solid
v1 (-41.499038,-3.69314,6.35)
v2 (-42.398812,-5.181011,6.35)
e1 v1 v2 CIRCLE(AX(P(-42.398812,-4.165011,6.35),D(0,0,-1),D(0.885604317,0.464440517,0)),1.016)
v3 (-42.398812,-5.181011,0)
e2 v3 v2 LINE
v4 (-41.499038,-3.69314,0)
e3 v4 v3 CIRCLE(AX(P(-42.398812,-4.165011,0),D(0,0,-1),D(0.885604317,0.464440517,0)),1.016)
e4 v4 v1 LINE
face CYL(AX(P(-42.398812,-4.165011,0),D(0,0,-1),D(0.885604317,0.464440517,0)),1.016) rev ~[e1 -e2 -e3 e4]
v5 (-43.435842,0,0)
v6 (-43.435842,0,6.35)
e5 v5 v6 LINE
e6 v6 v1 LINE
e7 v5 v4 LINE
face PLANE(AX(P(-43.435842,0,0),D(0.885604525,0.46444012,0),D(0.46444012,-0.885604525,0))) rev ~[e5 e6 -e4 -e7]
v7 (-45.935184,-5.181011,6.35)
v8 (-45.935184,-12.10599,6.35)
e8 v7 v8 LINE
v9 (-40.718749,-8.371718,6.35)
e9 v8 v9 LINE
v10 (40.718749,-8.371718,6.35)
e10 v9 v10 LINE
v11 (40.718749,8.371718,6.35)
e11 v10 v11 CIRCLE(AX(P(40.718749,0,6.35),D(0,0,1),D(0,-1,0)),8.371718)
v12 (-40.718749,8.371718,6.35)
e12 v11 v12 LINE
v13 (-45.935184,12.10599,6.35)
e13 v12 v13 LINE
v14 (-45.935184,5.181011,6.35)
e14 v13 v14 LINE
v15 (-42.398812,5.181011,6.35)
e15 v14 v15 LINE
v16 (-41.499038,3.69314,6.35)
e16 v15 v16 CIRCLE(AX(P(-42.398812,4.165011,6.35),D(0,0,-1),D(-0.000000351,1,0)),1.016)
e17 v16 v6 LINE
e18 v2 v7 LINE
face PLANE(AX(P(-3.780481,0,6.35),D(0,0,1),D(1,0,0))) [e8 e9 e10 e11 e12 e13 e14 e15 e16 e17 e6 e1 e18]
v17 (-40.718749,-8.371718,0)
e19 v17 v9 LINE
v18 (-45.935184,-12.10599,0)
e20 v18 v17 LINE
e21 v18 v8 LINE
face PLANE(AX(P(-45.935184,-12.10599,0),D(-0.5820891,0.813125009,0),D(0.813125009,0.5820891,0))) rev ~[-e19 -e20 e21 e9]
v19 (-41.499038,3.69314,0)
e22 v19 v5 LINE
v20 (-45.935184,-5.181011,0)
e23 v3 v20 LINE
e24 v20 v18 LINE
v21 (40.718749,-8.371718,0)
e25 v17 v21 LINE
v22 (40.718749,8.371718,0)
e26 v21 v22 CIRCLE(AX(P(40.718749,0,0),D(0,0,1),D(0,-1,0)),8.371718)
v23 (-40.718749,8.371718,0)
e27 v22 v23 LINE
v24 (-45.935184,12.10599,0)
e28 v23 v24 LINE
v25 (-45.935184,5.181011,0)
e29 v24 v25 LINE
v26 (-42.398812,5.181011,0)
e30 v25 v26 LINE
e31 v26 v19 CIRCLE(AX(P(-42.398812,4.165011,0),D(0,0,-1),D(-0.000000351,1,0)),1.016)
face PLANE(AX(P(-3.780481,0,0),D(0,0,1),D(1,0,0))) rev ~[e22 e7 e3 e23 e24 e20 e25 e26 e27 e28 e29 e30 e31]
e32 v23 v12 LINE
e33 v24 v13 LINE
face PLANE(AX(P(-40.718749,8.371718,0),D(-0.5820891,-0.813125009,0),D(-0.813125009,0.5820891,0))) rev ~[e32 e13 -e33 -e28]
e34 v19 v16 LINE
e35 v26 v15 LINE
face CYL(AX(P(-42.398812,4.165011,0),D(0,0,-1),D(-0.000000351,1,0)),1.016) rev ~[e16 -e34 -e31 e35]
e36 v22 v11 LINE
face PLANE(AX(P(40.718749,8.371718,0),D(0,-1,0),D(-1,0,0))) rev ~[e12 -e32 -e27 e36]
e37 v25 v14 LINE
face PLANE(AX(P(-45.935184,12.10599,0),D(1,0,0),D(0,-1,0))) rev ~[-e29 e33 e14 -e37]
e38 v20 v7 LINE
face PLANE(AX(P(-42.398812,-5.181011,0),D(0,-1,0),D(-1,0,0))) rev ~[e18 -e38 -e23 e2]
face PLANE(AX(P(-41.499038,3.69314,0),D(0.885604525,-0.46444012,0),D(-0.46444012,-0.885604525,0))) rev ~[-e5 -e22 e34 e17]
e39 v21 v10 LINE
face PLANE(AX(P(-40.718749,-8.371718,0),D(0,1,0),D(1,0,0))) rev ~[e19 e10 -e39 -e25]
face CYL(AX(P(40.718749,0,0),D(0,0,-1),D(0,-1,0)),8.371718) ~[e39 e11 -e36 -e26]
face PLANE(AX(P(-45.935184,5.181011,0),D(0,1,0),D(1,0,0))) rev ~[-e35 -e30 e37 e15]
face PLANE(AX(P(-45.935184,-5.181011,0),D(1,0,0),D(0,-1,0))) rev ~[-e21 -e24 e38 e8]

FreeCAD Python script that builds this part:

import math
import FreeCAD as App
import Part
import Sketcher
Q = App.Units.Quantity

doc = App.newDocument("Part")
body = doc.addObject("PartDesign::Body", "Body")

# Sketch on XY plane
sketch1 = body.newObject("Sketcher::SketchObject", "Sketch")
sketch1.AttachmentSupport = (doc.getObject("XY_Plane"), [""])
sketch1.MapMode = "FlatFace"
sketch1.addGeometry([
    Part.ArcOfCircle(Part.Circle(App.Vector(40.7, 0, 0), App.Vector(0, 0, 1), 8.4), math.radians(-90), math.radians(90)),  # 0
    Part.LineSegment(App.Vector(40.7, 8.4, 0), App.Vector(-40.7, 8.4, 0)),  # 1
    Part.LineSegment(App.Vector(-40.7, 8.4, 0), App.Vector(-45.9, 12.1, 0)),  # 2
    Part.LineSegment(App.Vector(-45.9, 12.1, 0), App.Vector(-45.9, 5.2, 0)),  # 3
    Part.LineSegment(App.Vector(-45.9, 5.2, 0), App.Vector(-42.4, 5.2, 0)),  # 4
    Part.ArcOfCircle(Part.Circle(App.Vector(-42.4, 4.2, 0), App.Vector(0, 0, 1), 1), math.radians(-28), math.radians(90)),  # 5
    Part.LineSegment(App.Vector(-41.5, 3.7, 0), App.Vector(-43.4, 0, 0)),  # 6
    Part.LineSegment(App.Vector(-43.4, 0, 0), App.Vector(-41.5, -3.7, 0)),  # 7
    Part.ArcOfCircle(Part.Circle(App.Vector(-42.4, -4.2, 0), App.Vector(0, 0, 1), 1), math.radians(-90), math.radians(28)),  # 8
    Part.LineSegment(App.Vector(-42.4, -5.2, 0), App.Vector(-45.9, -5.2, 0)),  # 9
    Part.LineSegment(App.Vector(-45.9, -5.2, 0), App.Vector(-45.9, -12.1, 0)),  # 10
    Part.LineSegment(App.Vector(-45.9, -12.1, 0), App.Vector(-40.7, -8.4, 0)),  # 11
    Part.LineSegment(App.Vector(-40.7, -8.4, 0), App.Vector(40.7, -8.4, 0)),  # 12
], False)
sketch1.addConstraint([
    Sketcher.Constraint("Tangent", 0, 2, 1, 1),
    Sketcher.Constraint("Coincident", 1, 2, 2, 1),
    Sketcher.Constraint("Coincident", 2, 2, 3, 1),
    Sketcher.Constraint("Coincident", 3, 2, 4, 1),
    Sketcher.Constraint("Tangent", 4, 2, 5, 2),
    Sketcher.Constraint("Tangent", 5, 1, 6, 1),
    Sketcher.Constraint("Coincident", 6, 2, 7, 1),
    Sketcher.Constraint("Tangent", 7, 2, 8, 2),
    Sketcher.Constraint("Tangent", 8, 1, 9, 1),
    Sketcher.Constraint("Coincident", 9, 2, 10, 1),
    Sketcher.Constraint("Coincident", 10, 2, 11, 1),
    Sketcher.Constraint("Coincident", 11, 2, 12, 1),
    Sketcher.Constraint("Tangent", 12, 2, 0, 1),
    Sketcher.Constraint("Horizontal", 1),
    Sketcher.Constraint("Vertical", 3),
    Sketcher.Constraint("Horizontal", 4),
    Sketcher.Constraint("Horizontal", 9),
    Sketcher.Constraint("Vertical", 10),
    Sketcher.Constraint("Horizontal", 12),
    Sketcher.Constraint("Equal", 5, 8),
    Sketcher.Constraint("Symmetric", 0, 2, 11, 2, -1, 1),
    Sketcher.Constraint("Symmetric", 5, 3, 8, 3, -1),
    Sketcher.Constraint("Symmetric", 2, 2, 10, 2, -1),
    Sketcher.Constraint("PointOnObject", 6, 2, -1),
    Sketcher.Constraint("Vertical", 1, 2, 11, 2),
    Sketcher.Constraint("Radius", 5, Q("0.04 in")),
    Sketcher.Constraint("DistanceX", 1, 2, 1, 1, Q("81.437498 mm")),
    Sketcher.Constraint("Radius", 0, Q("8.371718 mm")),
    Sketcher.Constraint("DistanceY", 3, 2, 3, 1, Q("6.924979 mm")),
    Sketcher.Constraint("DistanceY", 8, 3, 2, 2, Q("16.271001 mm")),
    Sketcher.Constraint("Distance", 6, Q("4.170191 mm")),
    Sketcher.Constraint("DistanceX", 4, 1, 4, 2, Q("3.536372 mm")),
    Sketcher.Constraint("DistanceX", 5, 3, -1, 1, Q("42.398812 mm")),
])
pad1 = body.newObject("PartDesign::Pad", "Pad")
pad1.Profile = sketch1
pad1.Length = Q("0.25 in")

doc.recompute()
